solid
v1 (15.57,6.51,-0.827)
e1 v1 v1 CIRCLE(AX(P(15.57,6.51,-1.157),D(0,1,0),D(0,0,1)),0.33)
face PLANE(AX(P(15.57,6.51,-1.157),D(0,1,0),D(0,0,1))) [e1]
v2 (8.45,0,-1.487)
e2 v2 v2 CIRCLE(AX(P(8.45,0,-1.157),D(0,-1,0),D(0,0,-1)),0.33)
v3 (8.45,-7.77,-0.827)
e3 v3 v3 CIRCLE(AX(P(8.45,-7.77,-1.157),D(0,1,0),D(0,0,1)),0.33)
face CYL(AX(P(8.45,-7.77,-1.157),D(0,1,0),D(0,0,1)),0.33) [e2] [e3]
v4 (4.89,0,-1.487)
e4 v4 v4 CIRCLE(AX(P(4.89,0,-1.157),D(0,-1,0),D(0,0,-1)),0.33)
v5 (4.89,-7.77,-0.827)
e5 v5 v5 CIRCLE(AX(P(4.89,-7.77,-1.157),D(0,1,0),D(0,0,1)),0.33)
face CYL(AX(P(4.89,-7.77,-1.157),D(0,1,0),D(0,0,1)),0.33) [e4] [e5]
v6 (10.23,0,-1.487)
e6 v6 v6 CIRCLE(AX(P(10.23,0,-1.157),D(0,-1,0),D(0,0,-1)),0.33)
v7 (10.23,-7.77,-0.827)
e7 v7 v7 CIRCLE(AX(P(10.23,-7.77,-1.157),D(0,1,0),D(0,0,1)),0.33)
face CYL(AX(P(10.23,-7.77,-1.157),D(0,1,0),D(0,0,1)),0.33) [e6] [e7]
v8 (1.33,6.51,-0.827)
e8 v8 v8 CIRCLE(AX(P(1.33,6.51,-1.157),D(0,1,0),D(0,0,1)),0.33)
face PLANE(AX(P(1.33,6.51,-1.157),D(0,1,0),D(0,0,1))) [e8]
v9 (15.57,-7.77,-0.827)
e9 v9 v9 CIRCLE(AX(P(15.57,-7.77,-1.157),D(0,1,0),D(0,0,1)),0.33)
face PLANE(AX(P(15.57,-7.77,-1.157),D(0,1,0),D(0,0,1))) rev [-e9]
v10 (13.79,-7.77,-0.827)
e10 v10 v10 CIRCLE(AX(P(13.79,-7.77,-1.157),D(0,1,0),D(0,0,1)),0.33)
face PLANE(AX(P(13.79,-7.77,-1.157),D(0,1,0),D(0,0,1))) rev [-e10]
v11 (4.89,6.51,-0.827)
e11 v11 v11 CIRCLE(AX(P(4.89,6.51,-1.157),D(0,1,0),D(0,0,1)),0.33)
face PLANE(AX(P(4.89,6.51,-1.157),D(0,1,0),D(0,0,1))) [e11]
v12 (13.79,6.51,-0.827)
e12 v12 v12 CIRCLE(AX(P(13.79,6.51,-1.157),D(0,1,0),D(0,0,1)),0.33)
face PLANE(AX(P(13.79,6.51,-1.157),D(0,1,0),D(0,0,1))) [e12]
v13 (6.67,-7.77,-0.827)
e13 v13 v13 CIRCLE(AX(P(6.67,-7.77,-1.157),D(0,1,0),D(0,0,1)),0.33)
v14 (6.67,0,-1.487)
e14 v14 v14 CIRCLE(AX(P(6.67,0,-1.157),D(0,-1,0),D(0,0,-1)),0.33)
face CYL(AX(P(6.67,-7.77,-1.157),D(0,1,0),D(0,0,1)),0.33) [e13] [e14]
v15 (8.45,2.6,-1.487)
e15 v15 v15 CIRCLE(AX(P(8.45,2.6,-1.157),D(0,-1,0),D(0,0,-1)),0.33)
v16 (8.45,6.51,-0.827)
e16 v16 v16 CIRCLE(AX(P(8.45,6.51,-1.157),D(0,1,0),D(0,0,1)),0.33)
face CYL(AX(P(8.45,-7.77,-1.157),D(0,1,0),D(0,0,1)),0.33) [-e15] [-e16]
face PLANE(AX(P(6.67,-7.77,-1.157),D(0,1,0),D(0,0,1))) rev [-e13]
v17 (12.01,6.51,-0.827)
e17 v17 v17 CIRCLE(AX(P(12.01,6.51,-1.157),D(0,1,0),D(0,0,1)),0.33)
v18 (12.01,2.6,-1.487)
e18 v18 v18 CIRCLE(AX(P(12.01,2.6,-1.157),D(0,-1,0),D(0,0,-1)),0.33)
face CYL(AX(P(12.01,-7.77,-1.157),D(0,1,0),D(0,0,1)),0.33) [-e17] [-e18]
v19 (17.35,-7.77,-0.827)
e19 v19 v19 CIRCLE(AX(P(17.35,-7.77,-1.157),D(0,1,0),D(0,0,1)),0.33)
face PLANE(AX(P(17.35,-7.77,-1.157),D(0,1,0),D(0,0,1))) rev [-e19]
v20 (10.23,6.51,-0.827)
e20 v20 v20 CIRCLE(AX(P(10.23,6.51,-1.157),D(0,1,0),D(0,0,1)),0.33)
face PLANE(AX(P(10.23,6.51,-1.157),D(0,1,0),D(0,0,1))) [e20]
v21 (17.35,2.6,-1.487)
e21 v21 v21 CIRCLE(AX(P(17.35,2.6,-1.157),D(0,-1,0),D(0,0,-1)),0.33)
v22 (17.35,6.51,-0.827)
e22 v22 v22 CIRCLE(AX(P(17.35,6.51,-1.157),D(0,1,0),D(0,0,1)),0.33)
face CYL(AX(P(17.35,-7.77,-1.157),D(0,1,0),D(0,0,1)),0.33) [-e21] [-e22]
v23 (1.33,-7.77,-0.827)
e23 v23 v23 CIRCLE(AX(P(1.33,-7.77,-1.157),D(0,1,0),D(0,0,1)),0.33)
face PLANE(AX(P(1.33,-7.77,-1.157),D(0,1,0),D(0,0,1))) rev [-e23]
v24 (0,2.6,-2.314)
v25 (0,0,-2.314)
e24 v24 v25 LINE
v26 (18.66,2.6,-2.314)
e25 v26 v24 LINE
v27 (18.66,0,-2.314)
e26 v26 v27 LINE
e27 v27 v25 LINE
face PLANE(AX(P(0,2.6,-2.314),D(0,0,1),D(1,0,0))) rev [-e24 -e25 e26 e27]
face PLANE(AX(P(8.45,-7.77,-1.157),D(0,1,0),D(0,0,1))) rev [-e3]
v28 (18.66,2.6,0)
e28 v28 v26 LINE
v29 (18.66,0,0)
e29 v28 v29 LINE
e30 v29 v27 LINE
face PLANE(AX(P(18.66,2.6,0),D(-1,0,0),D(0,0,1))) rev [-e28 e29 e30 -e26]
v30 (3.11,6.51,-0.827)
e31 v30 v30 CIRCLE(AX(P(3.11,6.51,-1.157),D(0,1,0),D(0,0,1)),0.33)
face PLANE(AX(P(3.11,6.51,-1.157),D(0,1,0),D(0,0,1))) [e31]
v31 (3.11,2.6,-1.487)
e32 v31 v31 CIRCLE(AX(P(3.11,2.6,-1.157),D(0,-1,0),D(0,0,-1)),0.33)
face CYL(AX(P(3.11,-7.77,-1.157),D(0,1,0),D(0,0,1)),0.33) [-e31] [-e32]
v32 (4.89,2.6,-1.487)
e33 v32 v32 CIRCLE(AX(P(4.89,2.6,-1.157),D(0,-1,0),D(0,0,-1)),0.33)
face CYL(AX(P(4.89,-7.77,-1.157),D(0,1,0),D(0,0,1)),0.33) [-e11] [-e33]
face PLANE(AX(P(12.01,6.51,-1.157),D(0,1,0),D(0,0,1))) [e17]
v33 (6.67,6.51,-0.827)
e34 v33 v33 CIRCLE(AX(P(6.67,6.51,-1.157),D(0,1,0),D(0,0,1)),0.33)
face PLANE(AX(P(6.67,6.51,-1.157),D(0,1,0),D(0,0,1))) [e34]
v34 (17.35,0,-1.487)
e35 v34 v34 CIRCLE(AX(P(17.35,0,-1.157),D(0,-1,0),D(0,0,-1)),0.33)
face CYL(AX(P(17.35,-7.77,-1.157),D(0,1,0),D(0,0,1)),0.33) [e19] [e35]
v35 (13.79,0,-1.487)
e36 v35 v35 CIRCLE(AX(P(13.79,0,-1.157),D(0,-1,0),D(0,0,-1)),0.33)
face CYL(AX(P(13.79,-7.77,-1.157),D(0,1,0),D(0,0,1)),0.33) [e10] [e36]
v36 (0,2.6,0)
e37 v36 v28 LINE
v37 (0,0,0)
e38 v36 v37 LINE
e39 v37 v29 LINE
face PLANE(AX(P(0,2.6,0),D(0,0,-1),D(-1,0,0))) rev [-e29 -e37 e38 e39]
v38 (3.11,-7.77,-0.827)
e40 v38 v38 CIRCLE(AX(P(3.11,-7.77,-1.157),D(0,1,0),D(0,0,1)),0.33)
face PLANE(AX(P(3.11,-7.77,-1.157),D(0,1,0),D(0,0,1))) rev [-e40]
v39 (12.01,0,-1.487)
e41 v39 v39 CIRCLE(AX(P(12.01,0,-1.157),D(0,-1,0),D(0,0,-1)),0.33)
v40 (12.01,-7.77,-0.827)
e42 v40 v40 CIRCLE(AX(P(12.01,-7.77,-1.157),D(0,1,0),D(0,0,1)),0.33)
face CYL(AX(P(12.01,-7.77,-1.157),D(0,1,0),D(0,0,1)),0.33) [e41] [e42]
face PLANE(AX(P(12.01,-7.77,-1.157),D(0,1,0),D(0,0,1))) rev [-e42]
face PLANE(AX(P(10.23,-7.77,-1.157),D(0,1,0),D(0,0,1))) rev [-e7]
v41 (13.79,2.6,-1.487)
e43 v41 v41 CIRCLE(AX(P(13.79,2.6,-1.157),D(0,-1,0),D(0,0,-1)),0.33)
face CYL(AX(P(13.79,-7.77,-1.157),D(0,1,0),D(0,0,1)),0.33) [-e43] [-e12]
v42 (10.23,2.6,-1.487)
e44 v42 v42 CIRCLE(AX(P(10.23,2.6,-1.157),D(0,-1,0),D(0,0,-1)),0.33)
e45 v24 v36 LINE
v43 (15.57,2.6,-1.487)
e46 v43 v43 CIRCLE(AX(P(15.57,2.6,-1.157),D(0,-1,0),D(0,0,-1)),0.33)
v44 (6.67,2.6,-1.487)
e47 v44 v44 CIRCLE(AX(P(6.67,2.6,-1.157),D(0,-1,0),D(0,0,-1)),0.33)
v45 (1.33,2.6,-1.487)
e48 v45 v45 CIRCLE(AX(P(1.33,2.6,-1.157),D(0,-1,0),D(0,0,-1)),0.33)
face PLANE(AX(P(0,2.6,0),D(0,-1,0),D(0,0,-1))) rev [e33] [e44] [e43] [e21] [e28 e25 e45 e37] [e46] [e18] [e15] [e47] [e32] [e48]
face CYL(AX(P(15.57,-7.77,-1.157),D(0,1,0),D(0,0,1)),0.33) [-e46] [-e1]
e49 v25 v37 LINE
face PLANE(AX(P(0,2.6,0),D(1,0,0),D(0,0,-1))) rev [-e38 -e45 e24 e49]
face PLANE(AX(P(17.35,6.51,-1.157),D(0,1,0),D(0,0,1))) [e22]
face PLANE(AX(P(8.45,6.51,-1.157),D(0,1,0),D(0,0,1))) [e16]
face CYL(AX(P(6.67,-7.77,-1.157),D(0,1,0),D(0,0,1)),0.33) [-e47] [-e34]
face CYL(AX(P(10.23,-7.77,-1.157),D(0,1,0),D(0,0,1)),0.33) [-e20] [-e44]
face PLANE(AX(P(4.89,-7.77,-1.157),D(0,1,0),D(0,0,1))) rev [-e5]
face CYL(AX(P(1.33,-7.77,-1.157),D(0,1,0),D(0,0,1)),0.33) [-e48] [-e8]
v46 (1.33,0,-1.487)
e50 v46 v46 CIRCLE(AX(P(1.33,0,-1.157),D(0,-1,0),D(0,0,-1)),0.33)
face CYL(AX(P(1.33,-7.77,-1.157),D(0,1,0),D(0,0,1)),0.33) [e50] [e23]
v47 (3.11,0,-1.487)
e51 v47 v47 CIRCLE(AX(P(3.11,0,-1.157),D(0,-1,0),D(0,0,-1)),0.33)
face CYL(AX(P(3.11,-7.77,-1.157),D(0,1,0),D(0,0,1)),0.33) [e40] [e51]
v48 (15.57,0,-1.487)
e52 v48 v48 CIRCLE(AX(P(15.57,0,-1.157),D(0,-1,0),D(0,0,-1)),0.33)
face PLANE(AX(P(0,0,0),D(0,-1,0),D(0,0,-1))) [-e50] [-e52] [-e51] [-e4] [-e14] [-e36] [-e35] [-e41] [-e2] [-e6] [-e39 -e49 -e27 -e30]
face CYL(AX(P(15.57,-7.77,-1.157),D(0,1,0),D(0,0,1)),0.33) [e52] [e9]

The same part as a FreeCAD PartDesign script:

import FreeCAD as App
import Part
import Sketcher

V = App.Vector
Q = App.Units.Quantity


def add_polygon(sketch, points):
    """Adds a closed chain of lines whose ends are joined by coincident constraints."""
    first, n = sketch.GeometryCount, len(points)
    for a, b in zip(points, points[1:] + points[:1]):
        sketch.addGeometry(Part.LineSegment(App.Vector(*a, 0), App.Vector(*b, 0)), False)
    for i in range(n):
        sketch.addConstraint(Sketcher.Constraint("Coincident", first + i, 2, first + (i + 1) % n, 1))

doc = App.newDocument("Part")
body = doc.addObject("PartDesign::Body", "Body")

sketch1 = body.newObject("Sketcher::SketchObject", "Sketch")
sketch1.AttachmentSupport = (doc.getObject("XZ_Plane"), [""])
sketch1.MapMode = "FlatFace"
add_polygon(sketch1, [(0, -2.3), (0, 0), (18.7, 0), (18.7, -2.3)])
sketch1.addConstraint([
    Sketcher.Constraint("Vertical", 0),
    Sketcher.Constraint("Horizontal", 1),
    Sketcher.Constraint("Vertical", 2),
    Sketcher.Constraint("Horizontal", 3),
    Sketcher.Constraint("Coincident", 0, 2, -1, 1),
    Sketcher.Constraint("DistanceX", 1, 1, 1, 2, Q("18.66 mm")),
    Sketcher.Constraint("DistanceY", 0, 1, 0, 2, Q("2.314 mm")),
])
pad1 = body.newObject("PartDesign::Pad", "Pad")
pad1.Profile = sketch1
pad1.Length = 2.6
pad1.Reversed = True

sketch2 = body.newObject("Sketcher::SketchObject", "Sketch001")
sketch2.AttachmentSupport = (doc.getObject("XZ_Plane"), [""])
sketch2.MapMode = "FlatFace"
sketch2.AttachmentOffset = App.Placement(V(0, 0, -2.6), App.Rotation())
sketch2.addGeometry([
    Part.Circle(V(1.33, -1.16, 0), V(0, 0, 1), 0.33),
    Part.Circle(V(3.11, -1.16, 0), V(0, 0, 1), 0.33),
    Part.Circle(V(4.89, -1.16, 0), V(0, 0, 1), 0.33),
    Part.Circle(V(6.67, -1.16, 0), V(0, 0, 1), 0.33),
    Part.Circle(V(8.45, -1.16, 0), V(0, 0, 1), 0.33),
    Part.Circle(V(10.23, -1.16, 0), V(0, 0, 1), 0.33),
    Part.Circle(V(12.01, -1.16, 0), V(0, 0, 1), 0.33),
    Part.Circle(V(13.79, -1.16, 0), V(0, 0, 1), 0.33),
    Part.Circle(V(15.57, -1.16, 0), V(0, 0, 1), 0.33),
    Part.Circle(V(17.35, -1.16, 0), V(0, 0, 1), 0.33),
], False)
sketch2.addConstraint([
    Sketcher.Constraint("Equal", 0, 1),
    Sketcher.Constraint("Equal", 1, 2),
    Sketcher.Constraint("Equal", 2, 3),
    Sketcher.Constraint("Equal", 3, 4),
    Sketcher.Constraint("Equal", 4, 5),
    Sketcher.Constraint("Equal", 5, 6),
    Sketcher.Constraint("Equal", 6, 7),
    Sketcher.Constraint("Equal", 7, 8),
    Sketcher.Constraint("Equal", 8, 9),
    Sketcher.Constraint("Horizontal", 0, 3, 1, 3),
    Sketcher.Constraint("Horizontal", 1, 3, 2, 3),
    Sketcher.Constraint("Horizontal", 2, 3, 3, 3),
    Sketcher.Constraint("Horizontal", 3, 3, 4, 3),
    Sketcher.Constraint("Horizontal", 4, 3, 5, 3),
    Sketcher.Constraint("Horizontal", 5, 3, 6, 3),
    Sketcher.Constraint("Horizontal", 6, 3, 7, 3),
    Sketcher.Constraint("Horizontal", 7, 3, 8, 3),
    Sketcher.Constraint("Horizontal", 8, 3, 9, 3),
    Sketcher.Constraint("Diameter", 0, Q("0.66 mm")),
    Sketcher.Constraint("DistanceX", 0, 3, 5, 3, Q("8.9 mm")),
    Sketcher.Constraint("DistanceX", 1, 3, 6, 3, Q("8.9 mm")),
    Sketcher.Constraint("DistanceX", 2, 3, 7, 3, Q("8.9 mm")),
    Sketcher.Constraint("DistanceX", 3, 3, 8, 3, Q("8.9 mm")),
    Sketcher.Constraint("DistanceX", 4, 3, 9, 3, Q("8.9 mm")),
    Sketcher.Constraint("DistanceX", -1, 1, 0, 3, Q("1.33 mm")),
    Sketcher.Constraint("DistanceX", -1, 1, 1, 3, Q("3.11 mm")),
    Sketcher.Constraint("DistanceX", -1, 1, 2, 3, Q("4.89 mm")),
    Sketcher.Constraint("DistanceX", -1, 1, 3, 3, Q("6.67 mm")),
    Sketcher.Constraint("DistanceX", -1, 1, 4, 3, Q("8.45 mm")),
    Sketcher.Constraint("DistanceY", 0, 3, -1, 1, Q("1.157 mm")),
])
pad2 = body.newObject("PartDesign::Pad", "Pad001")
pad2.Profile = sketch2
pad2.Type = "TwoLengths"
pad2.Length = 3.91
pad2.Length2 = 10.37
pad2.Reversed = True

doc.recompute()
